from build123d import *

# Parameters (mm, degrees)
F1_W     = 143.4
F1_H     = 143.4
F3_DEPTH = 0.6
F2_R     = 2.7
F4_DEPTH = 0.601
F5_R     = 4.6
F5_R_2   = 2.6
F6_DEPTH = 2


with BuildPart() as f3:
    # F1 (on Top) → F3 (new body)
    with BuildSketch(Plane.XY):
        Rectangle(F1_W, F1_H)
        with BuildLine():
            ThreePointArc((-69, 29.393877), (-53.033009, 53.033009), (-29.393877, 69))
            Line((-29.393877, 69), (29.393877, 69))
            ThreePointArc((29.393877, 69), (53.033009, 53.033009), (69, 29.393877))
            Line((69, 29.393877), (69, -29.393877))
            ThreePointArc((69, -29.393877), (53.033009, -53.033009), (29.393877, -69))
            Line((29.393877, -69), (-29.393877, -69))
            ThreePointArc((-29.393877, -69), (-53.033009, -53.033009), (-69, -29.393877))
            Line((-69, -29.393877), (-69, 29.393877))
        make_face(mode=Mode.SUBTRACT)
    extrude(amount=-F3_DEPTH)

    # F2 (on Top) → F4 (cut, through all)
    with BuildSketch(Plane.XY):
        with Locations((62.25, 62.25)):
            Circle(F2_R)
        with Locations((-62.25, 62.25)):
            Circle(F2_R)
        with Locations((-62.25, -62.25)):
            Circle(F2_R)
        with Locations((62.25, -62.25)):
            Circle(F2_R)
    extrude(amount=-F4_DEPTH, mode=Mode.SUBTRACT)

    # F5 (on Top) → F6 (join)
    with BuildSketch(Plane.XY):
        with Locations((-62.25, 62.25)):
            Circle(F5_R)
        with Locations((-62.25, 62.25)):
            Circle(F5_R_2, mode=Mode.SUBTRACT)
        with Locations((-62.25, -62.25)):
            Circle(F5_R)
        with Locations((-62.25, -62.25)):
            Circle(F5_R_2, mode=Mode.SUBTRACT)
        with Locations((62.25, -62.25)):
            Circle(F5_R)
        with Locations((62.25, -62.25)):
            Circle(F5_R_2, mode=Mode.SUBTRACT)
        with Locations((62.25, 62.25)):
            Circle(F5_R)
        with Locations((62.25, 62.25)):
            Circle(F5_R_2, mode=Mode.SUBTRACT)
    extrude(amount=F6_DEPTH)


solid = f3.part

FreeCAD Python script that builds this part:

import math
import FreeCAD as App
import Part
import Sketcher


def add_polygon(sketch, points):
    """Adds a closed chain of lines whose ends are joined by coincident constraints."""
    first, n = sketch.GeometryCount, len(points)
    for a, b in zip(points, points[1:] + points[:1]):
        sketch.addGeometry(Part.LineSegment(App.Vector(*a, 0), App.Vector(*b, 0)), False)
    for i in range(n):
        sketch.addConstraint(Sketcher.Constraint("Coincident", first + i, 2, first + (i + 1) % n, 1))

doc = App.newDocument("Part")
params = doc.addObject("Spreadsheet::Sheet", "Params")
for row, (alias, value) in enumerate([
    ("sketch1_width", "143.4 mm"),
    ("pad1_length", "0.6 mm"),
    ("sketch2_diameter", "5.4 mm"),
    ("sketch3_diameter", "9.2 mm"),
    ("sketch3_diameter2", "5.2 mm"),
    ("pad2_length", "2 mm"),
], start=1):
    params.set(f"A{row}", alias)
    params.set(f"B{row}", "=" + value)
    params.setAlias(f"B{row}", alias)

body = doc.addObject("PartDesign::Body", "Body")

# Sketch on XY plane
sketch1 = body.newObject("Sketcher::SketchObject", "Sketch")
sketch1.AttachmentSupport = (doc.getObject("XY_Plane"), [""])
sketch1.MapMode = "FlatFace"
add_polygon(sketch1, [(-72, 72), (-72, -72), (72, -72), (72, 72)])  # lines 0-3
sketch1.addGeometry(Part.LineSegment(App.Vector(-69, -29, 0), App.Vector(-69, 29, 0)), False)  # 4
sketch1.addGeometry(Part.ArcOfCircle(Part.Circle(App.Vector(0, 0, 0), App.Vector(0, 0, 1), 75), math.radians(113), math.radians(157)), False)  # 5
sketch1.addGeometry(Part.LineSegment(App.Vector(-29, 69, 0), App.Vector(29, 69, 0)), False)  # 6
sketch1.addGeometry(Part.ArcOfCircle(Part.Circle(App.Vector(0, 0, 0), App.Vector(0, 0, 1), 75), math.radians(23), math.radians(67)), False)  # 7
sketch1.addGeometry(Part.LineSegment(App.Vector(69, 29, 0), App.Vector(69, -29, 0)), False)  # 8
sketch1.addGeometry(Part.ArcOfCircle(Part.Circle(App.Vector(0, 0, 0), App.Vector(0, 0, 1), 75), math.radians(-67), math.radians(-23)), False)  # 9
sketch1.addGeometry(Part.LineSegment(App.Vector(29, -69, 0), App.Vector(-29, -69, 0)), False)  # 10
sketch1.addGeometry(Part.ArcOfCircle(Part.Circle(App.Vector(0, 0, 0), App.Vector(0, 0, 1), 75), math.radians(-157), math.radians(-113)), False)  # 11
sketch1.addConstraint(Sketcher.Constraint("Coincident", 4, 2, 5, 2))
sketch1.addConstraint(Sketcher.Constraint("Coincident", 5, 1, 6, 1))
sketch1.addConstraint(Sketcher.Constraint("Coincident", 6, 2, 7, 2))
sketch1.addConstraint(Sketcher.Constraint("Coincident", 7, 1, 8, 1))
sketch1.addConstraint(Sketcher.Constraint("Coincident", 8, 2, 9, 2))
sketch1.addConstraint(Sketcher.Constraint("Coincident", 9, 1, 10, 1))
sketch1.addConstraint(Sketcher.Constraint("Coincident", 10, 2, 11, 2))
sketch1.addConstraint(Sketcher.Constraint("Coincident", 11, 1, 4, 1))
sketch1.addConstraint(Sketcher.Constraint("Vertical", 0))
sketch1.addConstraint(Sketcher.Constraint("Horizontal", 1))
sketch1.addConstraint(Sketcher.Constraint("Vertical", 2))
sketch1.addConstraint(Sketcher.Constraint("Horizontal", 3))
sketch1.addConstraint(Sketcher.Constraint("Vertical", 4))
sketch1.addConstraint(Sketcher.Constraint("Horizontal", 6))
sketch1.addConstraint(Sketcher.Constraint("Vertical", 8))
sketch1.addConstraint(Sketcher.Constraint("Horizontal", 10))
sketch1.addConstraint(Sketcher.Constraint("Coincident", 5, 3, -1, 1))
sketch1.addConstraint(Sketcher.Constraint("Coincident", 7, 3, -1, 1))
sketch1.addConstraint(Sketcher.Constraint("Coincident", 9, 3, -1, 1))
sketch1.addConstraint(Sketcher.Constraint("Coincident", 11, 3, -1, 1))
sketch1.addConstraint(Sketcher.Constraint("Equal", 5, 7))
sketch1.addConstraint(Sketcher.Constraint("Equal", 7, 9))
sketch1.addConstraint(Sketcher.Constraint("Equal", 9, 11))
sketch1.addConstraint(Sketcher.Constraint("Symmetric", 0, 2, 2, 2, -1, 1))
sketch1.addConstraint(Sketcher.Constraint("Horizontal", 4, 2, 7, 1))
sketch1.addConstraint(Sketcher.Constraint("Vertical", 6, 2, 9, 1))
sketch1.addConstraint(Sketcher.Constraint("Equal", 3, 0))
sketch1.addConstraint(Sketcher.Constraint("Equal", 10, 4))
sketch1.addConstraint(Sketcher.Constraint("DistanceX", 1, 1, 1, 2, 143.4))
sketch1.addConstraint(Sketcher.Constraint("DistanceX", 4, 2, -1, 1, 69.0))
sketch1.addConstraint(Sketcher.Constraint("Radius", 5, 74.999993))
sketch1.setExpression("Constraints[32]", "Params.sketch1_width")
pad1 = body.newObject("PartDesign::Pad", "Pad")
pad1.Profile = sketch1
pad1.setExpression("Length", "Params.pad1_length")
pad1.Reversed = True

# Sketch on XY plane
sketch2 = body.newObject("Sketcher::SketchObject", "Sketch001")
sketch2.AttachmentSupport = (doc.getObject("XY_Plane"), [""])
sketch2.MapMode = "FlatFace"
sketch2.addGeometry(Part.Circle(App.Vector(62.2, 62.2, 0), App.Vector(0, 0, 1), 2.7), False)
sketch2.addGeometry(Part.Circle(App.Vector(-62.2, 62.2, 0), App.Vector(0, 0, 1), 2.7), False)
sketch2.addGeometry(Part.Circle(App.Vector(-62.2, -62.2, 0), App.Vector(0, 0, 1), 2.7), False)
sketch2.addGeometry(Part.Circle(App.Vector(62.2, -62.2, 0), App.Vector(0, 0, 1), 2.7), False)
sketch2.addConstraint(Sketcher.Constraint("Equal", 0, 1))
sketch2.addConstraint(Sketcher.Constraint("Equal", 1, 2))
sketch2.addConstraint(Sketcher.Constraint("Equal", 2, 3))
sketch2.addConstraint(Sketcher.Constraint("Symmetric", 0, 3, 2, 3, -1, 1))
sketch2.addConstraint(Sketcher.Constraint("Symmetric", 1, 3, 3, 3, -1, 1))
sketch2.addConstraint(Sketcher.Constraint("Symmetric", 0, 3, 1, 3, -2))
sketch2.addConstraint(Sketcher.Constraint("Diameter", 0, 5.4))
sketch2.addConstraint(Sketcher.Constraint("DistanceX", 1, 3, 0, 3, 124.5))
sketch2.addConstraint(Sketcher.Constraint("DistanceY", 2, 3, 1, 3, 124.5))
sketch2.setExpression("Constraints[6]", "Params.sketch2_diameter")
pocket1 = body.newObject("PartDesign::Pocket", "Pocket")
pocket1.Profile = sketch2
pocket1.Type = "ThroughAll"

# Sketch on XY plane
sketch3 = body.newObject("Sketcher::SketchObject", "Sketch002")
sketch3.AttachmentSupport = (doc.getObject("XY_Plane"), [""])
sketch3.MapMode = "FlatFace"
sketch3.addGeometry(Part.Circle(App.Vector(-62.2, 62.2, 0), App.Vector(0, 0, 1), 4.6), False)
sketch3.addGeometry(Part.Circle(App.Vector(-62.2, 62.2, 0), App.Vector(0, 0, 1), 2.6), False)
sketch3.addGeometry(Part.Circle(App.Vector(-62.2, -62.2, 0), App.Vector(0, 0, 1), 4.6), False)
sketch3.addGeometry(Part.Circle(App.Vector(-62.2, -62.2, 0), App.Vector(0, 0, 1), 2.6), False)
sketch3.addGeometry(Part.Circle(App.Vector(62.2, -62.2, 0), App.Vector(0, 0, 1), 4.6), False)
sketch3.addGeometry(Part.Circle(App.Vector(62.2, -62.2, 0), App.Vector(0, 0, 1), 2.6), False)
sketch3.addGeometry(Part.Circle(App.Vector(62.2, 62.2, 0), App.Vector(0, 0, 1), 4.6), False)
sketch3.addGeometry(Part.Circle(App.Vector(62.2, 62.2, 0), App.Vector(0, 0, 1), 2.6), False)
sketch3.addConstraint(Sketcher.Constraint("Coincident", 1, 3, 0, 3))
sketch3.addConstraint(Sketcher.Constraint("Coincident", 3, 3, 2, 3))
sketch3.addConstraint(Sketcher.Constraint("Coincident", 5, 3, 4, 3))
sketch3.addConstraint(Sketcher.Constraint("Coincident", 7, 3, 6, 3))
sketch3.addConstraint(Sketcher.Constraint("Equal", 0, 2))
sketch3.addConstraint(Sketcher.Constraint("Equal", 1, 3))
sketch3.addConstraint(Sketcher.Constraint("Equal", 2, 4))
sketch3.addConstraint(Sketcher.Constraint("Equal", 3, 5))
sketch3.addConstraint(Sketcher.Constraint("Equal", 4, 6))
sketch3.addConstraint(Sketcher.Constraint("Equal", 5, 7))
sketch3.addConstraint(Sketcher.Constraint("Symmetric", 0, 3, 4, 3, -1, 1))
sketch3.addConstraint(Sketcher.Constraint("Symmetric", 2, 3, 6, 3, -1, 1))
sketch3.addConstraint(Sketcher.Constraint("Symmetric", 2, 3, 4, 3, -2))
sketch3.addConstraint(Sketcher.Constraint("Diameter", 0, 9.2))
sketch3.addConstraint(Sketcher.Constraint("Diameter", 1, 5.2))
sketch3.addConstraint(Sketcher.Constraint("DistanceY", 2, 3, 0, 3, 124.5))
sketch3.addConstraint(Sketcher.Constraint("DistanceX", 2, 3, 4, 3, 124.5))
sketch3.setExpression("Constraints[13]", "Params.sketch3_diameter")
sketch3.setExpression("Constraints[14]", "Params.sketch3_diameter2")
pad2 = body.newObject("PartDesign::Pad", "Pad001")
pad2.Profile = sketch3
pad2.setExpression("Length", "Params.pad2_length")

doc.recompute()
